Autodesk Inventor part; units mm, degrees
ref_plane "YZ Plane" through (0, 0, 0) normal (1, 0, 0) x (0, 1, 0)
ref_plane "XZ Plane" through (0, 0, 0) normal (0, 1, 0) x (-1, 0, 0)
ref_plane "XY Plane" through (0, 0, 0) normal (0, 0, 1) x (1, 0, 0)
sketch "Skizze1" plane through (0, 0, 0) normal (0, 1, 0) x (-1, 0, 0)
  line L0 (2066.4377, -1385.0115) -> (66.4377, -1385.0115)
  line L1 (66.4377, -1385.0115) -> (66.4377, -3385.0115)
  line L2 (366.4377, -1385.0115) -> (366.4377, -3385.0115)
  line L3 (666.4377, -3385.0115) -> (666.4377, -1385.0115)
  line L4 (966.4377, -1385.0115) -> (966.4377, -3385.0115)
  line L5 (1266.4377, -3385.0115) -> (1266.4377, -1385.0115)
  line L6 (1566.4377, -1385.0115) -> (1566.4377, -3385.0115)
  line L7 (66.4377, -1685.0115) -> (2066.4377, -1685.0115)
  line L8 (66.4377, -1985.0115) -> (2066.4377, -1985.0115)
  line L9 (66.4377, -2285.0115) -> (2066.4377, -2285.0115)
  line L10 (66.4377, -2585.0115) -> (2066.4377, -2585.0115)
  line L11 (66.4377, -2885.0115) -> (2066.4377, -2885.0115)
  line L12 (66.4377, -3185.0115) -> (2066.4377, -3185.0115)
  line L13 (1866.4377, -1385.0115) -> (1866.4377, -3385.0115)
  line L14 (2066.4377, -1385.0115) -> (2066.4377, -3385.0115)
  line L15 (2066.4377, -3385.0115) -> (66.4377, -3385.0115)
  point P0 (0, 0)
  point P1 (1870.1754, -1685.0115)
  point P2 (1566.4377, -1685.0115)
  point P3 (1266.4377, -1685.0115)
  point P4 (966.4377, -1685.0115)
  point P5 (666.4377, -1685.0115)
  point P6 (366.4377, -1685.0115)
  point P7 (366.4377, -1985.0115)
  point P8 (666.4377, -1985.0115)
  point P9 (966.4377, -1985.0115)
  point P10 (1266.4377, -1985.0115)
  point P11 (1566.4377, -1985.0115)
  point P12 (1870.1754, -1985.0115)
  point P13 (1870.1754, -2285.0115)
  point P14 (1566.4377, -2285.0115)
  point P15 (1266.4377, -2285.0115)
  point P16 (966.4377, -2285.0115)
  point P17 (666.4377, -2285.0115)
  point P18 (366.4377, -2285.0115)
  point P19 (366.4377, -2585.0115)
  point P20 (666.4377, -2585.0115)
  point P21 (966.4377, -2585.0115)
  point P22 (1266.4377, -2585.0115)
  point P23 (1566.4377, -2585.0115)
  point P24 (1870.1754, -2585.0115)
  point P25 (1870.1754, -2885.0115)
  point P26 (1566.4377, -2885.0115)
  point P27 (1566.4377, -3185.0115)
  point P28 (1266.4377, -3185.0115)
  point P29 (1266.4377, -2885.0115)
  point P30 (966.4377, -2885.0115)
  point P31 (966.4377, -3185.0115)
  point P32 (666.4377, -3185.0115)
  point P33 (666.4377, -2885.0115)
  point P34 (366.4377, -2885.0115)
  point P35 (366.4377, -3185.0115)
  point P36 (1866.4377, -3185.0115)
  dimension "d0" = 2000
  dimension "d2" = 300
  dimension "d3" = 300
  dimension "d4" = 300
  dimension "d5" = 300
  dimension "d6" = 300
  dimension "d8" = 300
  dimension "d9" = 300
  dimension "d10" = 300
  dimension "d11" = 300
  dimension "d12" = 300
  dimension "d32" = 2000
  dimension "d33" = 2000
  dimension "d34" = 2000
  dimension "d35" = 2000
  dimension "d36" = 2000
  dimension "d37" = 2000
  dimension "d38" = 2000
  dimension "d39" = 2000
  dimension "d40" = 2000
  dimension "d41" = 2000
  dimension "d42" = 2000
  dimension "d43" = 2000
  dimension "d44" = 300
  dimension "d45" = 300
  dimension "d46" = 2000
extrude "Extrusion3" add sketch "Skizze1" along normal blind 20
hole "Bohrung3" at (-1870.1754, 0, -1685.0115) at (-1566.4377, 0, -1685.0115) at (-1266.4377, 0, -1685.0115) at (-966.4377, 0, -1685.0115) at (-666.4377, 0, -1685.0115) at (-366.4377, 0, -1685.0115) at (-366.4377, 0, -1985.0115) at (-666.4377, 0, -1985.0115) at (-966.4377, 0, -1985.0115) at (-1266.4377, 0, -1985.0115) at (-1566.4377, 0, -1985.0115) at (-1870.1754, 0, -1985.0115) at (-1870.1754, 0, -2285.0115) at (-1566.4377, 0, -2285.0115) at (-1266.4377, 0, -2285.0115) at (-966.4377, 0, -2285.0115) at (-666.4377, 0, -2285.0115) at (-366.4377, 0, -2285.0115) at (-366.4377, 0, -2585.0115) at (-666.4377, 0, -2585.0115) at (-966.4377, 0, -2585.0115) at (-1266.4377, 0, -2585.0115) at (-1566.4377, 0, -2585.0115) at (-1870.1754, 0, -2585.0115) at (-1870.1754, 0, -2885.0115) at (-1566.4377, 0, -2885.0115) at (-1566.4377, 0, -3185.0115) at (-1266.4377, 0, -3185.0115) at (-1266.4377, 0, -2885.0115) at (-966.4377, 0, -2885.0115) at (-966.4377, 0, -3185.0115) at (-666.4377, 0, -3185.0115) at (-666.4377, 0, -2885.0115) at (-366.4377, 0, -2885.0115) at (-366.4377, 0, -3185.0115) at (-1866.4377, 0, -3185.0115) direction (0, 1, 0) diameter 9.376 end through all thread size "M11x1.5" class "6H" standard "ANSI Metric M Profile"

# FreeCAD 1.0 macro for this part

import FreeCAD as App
import Part
import Sketcher

V = App.Vector
Q = App.Units.Quantity


def add_polygon(sketch, points):
    """Adds a closed chain of lines whose ends are joined by coincident constraints."""
    first, n = sketch.GeometryCount, len(points)
    for a, b in zip(points, points[1:] + points[:1]):
        sketch.addGeometry(Part.LineSegment(App.Vector(*a, 0), App.Vector(*b, 0)), False)
    for i in range(n):
        sketch.addConstraint(Sketcher.Constraint("Coincident", first + i, 2, first + (i + 1) % n, 1))

doc = App.newDocument("Part")
body = doc.addObject("PartDesign::Body", "Body")

# Sketch on XZ plane
sketch1 = body.newObject("Sketcher::SketchObject", "Sketch")
sketch1.AttachmentSupport = (doc.getObject("XZ_Plane"), [""])
sketch1.MapMode = "FlatFace"
add_polygon(sketch1, [(-2066.4377, -1385.0115), (-66.4377, -1385.0115), (-66.4377, -3385.0115), (-2066.4377, -3385.0115)])  # lines 0-3
sketch1.addConstraint([
    Sketcher.Constraint("Horizontal", 0),
    Sketcher.Constraint("Vertical", 1),
    Sketcher.Constraint("Horizontal", 2),
    Sketcher.Constraint("Vertical", 3),
    Sketcher.Constraint("Equal", 2, 1),
    Sketcher.Constraint("DistanceX", 0, 1, 0, 2, Q("2000 mm")),
    Sketcher.Constraint("DistanceX", 0, 2, -1, 1, Q("66.4377 mm")),
    Sketcher.Constraint("DistanceY", 0, 2, -1, 1, Q("1385.0115 mm")),
])
pad1 = body.newObject("PartDesign::Pad", "Pad")
pad1.Profile = sketch1
pad1.Length = 20
pad1.Reversed = True

# Sketch on XZ plane
sketch2 = body.newObject("Sketcher::SketchObject", "Sketch001")
sketch2.AttachmentSupport = (doc.getObject("XZ_Plane"), [""])
sketch2.MapMode = "FlatFace"
sketch2.addGeometry([
    Part.Circle(V(-1870.1754, -1685.0115, 0), V(0, 0, 1), 4.688),  # 0
    Part.Circle(V(-1566.4377, -1685.0115, 0), V(0, 0, 1), 4.688),  # 1
    Part.Circle(V(-1266.4377, -1685.0115, 0), V(0, 0, 1), 4.688),  # 2
    Part.Circle(V(-966.4377, -1685.0115, 0), V(0, 0, 1), 4.688),  # 3
    Part.Circle(V(-666.4377, -1685.0115, 0), V(0, 0, 1), 4.688),  # 4
    Part.Circle(V(-366.4377, -1685.0115, 0), V(0, 0, 1), 4.688),  # 5
    Part.Circle(V(-366.4377, -1985.0115, 0), V(0, 0, 1), 4.688),  # 6
    Part.Circle(V(-666.4377, -1985.0115, 0), V(0, 0, 1), 4.688),  # 7
    Part.Circle(V(-966.4377, -1985.0115, 0), V(0, 0, 1), 4.688),  # 8
    Part.Circle(V(-1266.4377, -1985.0115, 0), V(0, 0, 1), 4.688),  # 9
    Part.Circle(V(-1566.4377, -1985.0115, 0), V(0, 0, 1), 4.688),  # 10
    Part.Circle(V(-1870.1754, -1985.0115, 0), V(0, 0, 1), 4.688),  # 11
    Part.Circle(V(-1870.1754, -2285.0115, 0), V(0, 0, 1), 4.688),  # 12
    Part.Circle(V(-1566.4377, -2285.0115, 0), V(0, 0, 1), 4.688),  # 13
    Part.Circle(V(-1266.4377, -2285.0115, 0), V(0, 0, 1), 4.688),  # 14
    Part.Circle(V(-966.4377, -2285.0115, 0), V(0, 0, 1), 4.688),  # 15
    Part.Circle(V(-666.4377, -2285.0115, 0), V(0, 0, 1), 4.688),  # 16
    Part.Circle(V(-366.4377, -2285.0115, 0), V(0, 0, 1), 4.688),  # 17
    Part.Circle(V(-366.4377, -2585.0115, 0), V(0, 0, 1), 4.688),  # 18
    Part.Circle(V(-666.4377, -2585.0115, 0), V(0, 0, 1), 4.688),  # 19
    Part.Circle(V(-966.4377, -2585.0115, 0), V(0, 0, 1), 4.688),  # 20
    Part.Circle(V(-1266.4377, -2585.0115, 0), V(0, 0, 1), 4.688),  # 21
    Part.Circle(V(-1566.4377, -2585.0115, 0), V(0, 0, 1), 4.688),  # 22
    Part.Circle(V(-1870.1754, -2585.0115, 0), V(0, 0, 1), 4.688),  # 23
    Part.Circle(V(-1870.1754, -2885.0115, 0), V(0, 0, 1), 4.688),  # 24
    Part.Circle(V(-1566.4377, -2885.0115, 0), V(0, 0, 1), 4.688),  # 25
    Part.Circle(V(-1566.4377, -3185.0115, 0), V(0, 0, 1), 4.688),  # 26
    Part.Circle(V(-1266.4377, -3185.0115, 0), V(0, 0, 1), 4.688),  # 27
    Part.Circle(V(-1266.4377, -2885.0115, 0), V(0, 0, 1), 4.688),  # 28
    Part.Circle(V(-966.4377, -2885.0115, 0), V(0, 0, 1), 4.688),  # 29
    Part.Circle(V(-966.4377, -3185.0115, 0), V(0, 0, 1), 4.688),  # 30
    Part.Circle(V(-666.4377, -3185.0115, 0), V(0, 0, 1), 4.688),  # 31
    Part.Circle(V(-666.4377, -2885.0115, 0), V(0, 0, 1), 4.688),  # 32
    Part.Circle(V(-366.4377, -2885.0115, 0), V(0, 0, 1), 4.688),  # 33
    Part.Circle(V(-366.4377, -3185.0115, 0), V(0, 0, 1), 4.688),  # 34
    Part.Circle(V(-1866.4377, -3185.0115, 0), V(0, 0, 1), 4.688),  # 35
], False)
sketch2.addConstraint([
    Sketcher.Constraint("Equal", 0, 1),
    Sketcher.Constraint("Equal", 1, 2),
    Sketcher.Constraint("Equal", 2, 3),
    Sketcher.Constraint("Equal", 3, 4),
    Sketcher.Constraint("Equal", 4, 5),
    Sketcher.Constraint("Equal", 5, 6),
    Sketcher.Constraint("Equal", 6, 7),
    Sketcher.Constraint("Equal", 7, 8),
    Sketcher.Constraint("Equal", 8, 9),
    Sketcher.Constraint("Equal", 9, 10),
    Sketcher.Constraint("Equal", 10, 11),
    Sketcher.Constraint("Equal", 11, 12),
    Sketcher.Constraint("Equal", 12, 13),
    Sketcher.Constraint("Equal", 13, 14),
    Sketcher.Constraint("Equal", 14, 15),
    Sketcher.Constraint("Equal", 15, 16),
    Sketcher.Constraint("Equal", 16, 17),
    Sketcher.Constraint("Equal", 17, 18),
    Sketcher.Constraint("Equal", 18, 19),
    Sketcher.Constraint("Equal", 19, 20),
    Sketcher.Constraint("Equal", 20, 21),
    Sketcher.Constraint("Equal", 21, 22),
    Sketcher.Constraint("Equal", 22, 23),
    Sketcher.Constraint("Equal", 23, 24),
    Sketcher.Constraint("Equal", 24, 25),
    Sketcher.Constraint("Equal", 25, 26),
    Sketcher.Constraint("Equal", 26, 27),
    Sketcher.Constraint("Equal", 27, 28),
    Sketcher.Constraint("Equal", 28, 29),
    Sketcher.Constraint("Equal", 29, 30),
    Sketcher.Constraint("Equal", 30, 31),
    Sketcher.Constraint("Equal", 31, 32),
    Sketcher.Constraint("Equal", 32, 33),
    Sketcher.Constraint("Equal", 33, 34),
    Sketcher.Constraint("Equal", 34, 35),
    Sketcher.Constraint("Horizontal", 0, 3, 1, 3),
    Sketcher.Constraint("Horizontal", 1, 3, 2, 3),
    Sketcher.Constraint("Horizontal", 2, 3, 3, 3),
    Sketcher.Constraint("Horizontal", 3, 3, 4, 3),
    Sketcher.Constraint("Horizontal", 4, 3, 5, 3),
    Sketcher.Constraint("Horizontal", 6, 3, 7, 3),
    Sketcher.Constraint("Horizontal", 7, 3, 8, 3),
    Sketcher.Constraint("Horizontal", 8, 3, 9, 3),
    Sketcher.Constraint("Horizontal", 9, 3, 10, 3),
    Sketcher.Constraint("Horizontal", 10, 3, 11, 3),
    Sketcher.Constraint("Horizontal", 12, 3, 13, 3),
    Sketcher.Constraint("Horizontal", 13, 3, 14, 3),
    Sketcher.Constraint("Horizontal", 14, 3, 15, 3),
    Sketcher.Constraint("Horizontal", 15, 3, 16, 3),
    Sketcher.Constraint("Horizontal", 16, 3, 17, 3),
    Sketcher.Constraint("Horizontal", 18, 3, 19, 3),
    Sketcher.Constraint("Horizontal", 19, 3, 20, 3),
    Sketcher.Constraint("Horizontal", 20, 3, 21, 3),
    Sketcher.Constraint("Horizontal", 21, 3, 22, 3),
    Sketcher.Constraint("Horizontal", 22, 3, 23, 3),
    Sketcher.Constraint("Horizontal", 24, 3, 25, 3),
    Sketcher.Constraint("Horizontal", 26, 3, 27, 3),
    Sketcher.Constraint("Horizontal", 25, 3, 28, 3),
    Sketcher.Constraint("Horizontal", 28, 3, 29, 3),
    Sketcher.Constraint("Horizontal", 27, 3, 30, 3),
    Sketcher.Constraint("Horizontal", 30, 3, 31, 3),
    Sketcher.Constraint("Horizontal", 29, 3, 32, 3),
    Sketcher.Constraint("Horizontal", 32, 3, 33, 3),
    Sketcher.Constraint("Horizontal", 31, 3, 34, 3),
    Sketcher.Constraint("Horizontal", 34, 3, 35, 3),
    Sketcher.Constraint("Vertical", 5, 3, 6, 3),
    Sketcher.Constraint("Vertical", 4, 3, 7, 3),
    Sketcher.Constraint("Vertical", 3, 3, 8, 3),
    Sketcher.Constraint("Vertical", 2, 3, 9, 3),
    Sketcher.Constraint("Vertical", 1, 3, 10, 3),
    Sketcher.Constraint("Vertical", 0, 3, 11, 3),
    Sketcher.Constraint("Vertical", 11, 3, 12, 3),
    Sketcher.Constraint("Vertical", 10, 3, 13, 3),
    Sketcher.Constraint("Vertical", 9, 3, 14, 3),
    Sketcher.Constraint("Vertical", 8, 3, 15, 3),
    Sketcher.Constraint("Vertical", 7, 3, 16, 3),
    Sketcher.Constraint("Vertical", 6, 3, 17, 3),
    Sketcher.Constraint("Vertical", 17, 3, 18, 3),
    Sketcher.Constraint("Vertical", 16, 3, 19, 3),
    Sketcher.Constraint("Vertical", 15, 3, 20, 3),
    Sketcher.Constraint("Vertical", 14, 3, 21, 3),
    Sketcher.Constraint("Vertical", 13, 3, 22, 3),
    Sketcher.Constraint("Vertical", 12, 3, 23, 3),
    Sketcher.Constraint("Vertical", 23, 3, 24, 3),
    Sketcher.Constraint("Vertical", 22, 3, 25, 3),
    Sketcher.Constraint("Vertical", 25, 3, 26, 3),
    Sketcher.Constraint("Vertical", 21, 3, 27, 3),
    Sketcher.Constraint("Vertical", 27, 3, 28, 3),
    Sketcher.Constraint("Vertical", 20, 3, 29, 3),
    Sketcher.Constraint("Vertical", 29, 3, 30, 3),
    Sketcher.Constraint("Vertical", 19, 3, 31, 3),
    Sketcher.Constraint("Vertical", 31, 3, 32, 3),
    Sketcher.Constraint("Vertical", 18, 3, 33, 3),
    Sketcher.Constraint("Vertical", 33, 3, 34, 3),
    Sketcher.Constraint("Diameter", 0, Q("9.376 mm")),
    Sketcher.Constraint("DistanceX", 1, 3, 2, 3, Q("300 mm")),
    Sketcher.Constraint("DistanceX", 2, 3, 3, 3, Q("300 mm")),
    Sketcher.Constraint("DistanceX", 3, 3, 4, 3, Q("300 mm")),
    Sketcher.Constraint("DistanceX", 4, 3, 5, 3, Q("300 mm")),
    Sketcher.Constraint("DistanceY", 6, 3, 5, 3, Q("300 mm")),
    Sketcher.Constraint("DistanceY", 12, 3, 11, 3, Q("300 mm")),
    Sketcher.Constraint("DistanceY", 18, 3, 17, 3, Q("300 mm")),
    Sketcher.Constraint("DistanceY", 24, 3, 23, 3, Q("300 mm")),
    Sketcher.Constraint("DistanceY", 26, 3, 25, 3, Q("300 mm")),
    Sketcher.Constraint("DistanceX", 35, 3, 26, 3, Q("300 mm")),
    Sketcher.Constraint("DistanceX", 0, 3, -1, 1, Q("1870.1754 mm")),
    Sketcher.Constraint("DistanceY", 0, 3, -1, 1, Q("1685.0115 mm")),
    Sketcher.Constraint("DistanceX", 1, 3, -1, 1, Q("1566.4377 mm")),
])
doc.recompute()
hole = body.newObject("PartDesign::Hole", "Hole")
hole.Profile = sketch2
hole.ThreadType = "None"
hole.Diameter = 9.376
hole.DepthType = "ThroughAll"

doc.recompute()
